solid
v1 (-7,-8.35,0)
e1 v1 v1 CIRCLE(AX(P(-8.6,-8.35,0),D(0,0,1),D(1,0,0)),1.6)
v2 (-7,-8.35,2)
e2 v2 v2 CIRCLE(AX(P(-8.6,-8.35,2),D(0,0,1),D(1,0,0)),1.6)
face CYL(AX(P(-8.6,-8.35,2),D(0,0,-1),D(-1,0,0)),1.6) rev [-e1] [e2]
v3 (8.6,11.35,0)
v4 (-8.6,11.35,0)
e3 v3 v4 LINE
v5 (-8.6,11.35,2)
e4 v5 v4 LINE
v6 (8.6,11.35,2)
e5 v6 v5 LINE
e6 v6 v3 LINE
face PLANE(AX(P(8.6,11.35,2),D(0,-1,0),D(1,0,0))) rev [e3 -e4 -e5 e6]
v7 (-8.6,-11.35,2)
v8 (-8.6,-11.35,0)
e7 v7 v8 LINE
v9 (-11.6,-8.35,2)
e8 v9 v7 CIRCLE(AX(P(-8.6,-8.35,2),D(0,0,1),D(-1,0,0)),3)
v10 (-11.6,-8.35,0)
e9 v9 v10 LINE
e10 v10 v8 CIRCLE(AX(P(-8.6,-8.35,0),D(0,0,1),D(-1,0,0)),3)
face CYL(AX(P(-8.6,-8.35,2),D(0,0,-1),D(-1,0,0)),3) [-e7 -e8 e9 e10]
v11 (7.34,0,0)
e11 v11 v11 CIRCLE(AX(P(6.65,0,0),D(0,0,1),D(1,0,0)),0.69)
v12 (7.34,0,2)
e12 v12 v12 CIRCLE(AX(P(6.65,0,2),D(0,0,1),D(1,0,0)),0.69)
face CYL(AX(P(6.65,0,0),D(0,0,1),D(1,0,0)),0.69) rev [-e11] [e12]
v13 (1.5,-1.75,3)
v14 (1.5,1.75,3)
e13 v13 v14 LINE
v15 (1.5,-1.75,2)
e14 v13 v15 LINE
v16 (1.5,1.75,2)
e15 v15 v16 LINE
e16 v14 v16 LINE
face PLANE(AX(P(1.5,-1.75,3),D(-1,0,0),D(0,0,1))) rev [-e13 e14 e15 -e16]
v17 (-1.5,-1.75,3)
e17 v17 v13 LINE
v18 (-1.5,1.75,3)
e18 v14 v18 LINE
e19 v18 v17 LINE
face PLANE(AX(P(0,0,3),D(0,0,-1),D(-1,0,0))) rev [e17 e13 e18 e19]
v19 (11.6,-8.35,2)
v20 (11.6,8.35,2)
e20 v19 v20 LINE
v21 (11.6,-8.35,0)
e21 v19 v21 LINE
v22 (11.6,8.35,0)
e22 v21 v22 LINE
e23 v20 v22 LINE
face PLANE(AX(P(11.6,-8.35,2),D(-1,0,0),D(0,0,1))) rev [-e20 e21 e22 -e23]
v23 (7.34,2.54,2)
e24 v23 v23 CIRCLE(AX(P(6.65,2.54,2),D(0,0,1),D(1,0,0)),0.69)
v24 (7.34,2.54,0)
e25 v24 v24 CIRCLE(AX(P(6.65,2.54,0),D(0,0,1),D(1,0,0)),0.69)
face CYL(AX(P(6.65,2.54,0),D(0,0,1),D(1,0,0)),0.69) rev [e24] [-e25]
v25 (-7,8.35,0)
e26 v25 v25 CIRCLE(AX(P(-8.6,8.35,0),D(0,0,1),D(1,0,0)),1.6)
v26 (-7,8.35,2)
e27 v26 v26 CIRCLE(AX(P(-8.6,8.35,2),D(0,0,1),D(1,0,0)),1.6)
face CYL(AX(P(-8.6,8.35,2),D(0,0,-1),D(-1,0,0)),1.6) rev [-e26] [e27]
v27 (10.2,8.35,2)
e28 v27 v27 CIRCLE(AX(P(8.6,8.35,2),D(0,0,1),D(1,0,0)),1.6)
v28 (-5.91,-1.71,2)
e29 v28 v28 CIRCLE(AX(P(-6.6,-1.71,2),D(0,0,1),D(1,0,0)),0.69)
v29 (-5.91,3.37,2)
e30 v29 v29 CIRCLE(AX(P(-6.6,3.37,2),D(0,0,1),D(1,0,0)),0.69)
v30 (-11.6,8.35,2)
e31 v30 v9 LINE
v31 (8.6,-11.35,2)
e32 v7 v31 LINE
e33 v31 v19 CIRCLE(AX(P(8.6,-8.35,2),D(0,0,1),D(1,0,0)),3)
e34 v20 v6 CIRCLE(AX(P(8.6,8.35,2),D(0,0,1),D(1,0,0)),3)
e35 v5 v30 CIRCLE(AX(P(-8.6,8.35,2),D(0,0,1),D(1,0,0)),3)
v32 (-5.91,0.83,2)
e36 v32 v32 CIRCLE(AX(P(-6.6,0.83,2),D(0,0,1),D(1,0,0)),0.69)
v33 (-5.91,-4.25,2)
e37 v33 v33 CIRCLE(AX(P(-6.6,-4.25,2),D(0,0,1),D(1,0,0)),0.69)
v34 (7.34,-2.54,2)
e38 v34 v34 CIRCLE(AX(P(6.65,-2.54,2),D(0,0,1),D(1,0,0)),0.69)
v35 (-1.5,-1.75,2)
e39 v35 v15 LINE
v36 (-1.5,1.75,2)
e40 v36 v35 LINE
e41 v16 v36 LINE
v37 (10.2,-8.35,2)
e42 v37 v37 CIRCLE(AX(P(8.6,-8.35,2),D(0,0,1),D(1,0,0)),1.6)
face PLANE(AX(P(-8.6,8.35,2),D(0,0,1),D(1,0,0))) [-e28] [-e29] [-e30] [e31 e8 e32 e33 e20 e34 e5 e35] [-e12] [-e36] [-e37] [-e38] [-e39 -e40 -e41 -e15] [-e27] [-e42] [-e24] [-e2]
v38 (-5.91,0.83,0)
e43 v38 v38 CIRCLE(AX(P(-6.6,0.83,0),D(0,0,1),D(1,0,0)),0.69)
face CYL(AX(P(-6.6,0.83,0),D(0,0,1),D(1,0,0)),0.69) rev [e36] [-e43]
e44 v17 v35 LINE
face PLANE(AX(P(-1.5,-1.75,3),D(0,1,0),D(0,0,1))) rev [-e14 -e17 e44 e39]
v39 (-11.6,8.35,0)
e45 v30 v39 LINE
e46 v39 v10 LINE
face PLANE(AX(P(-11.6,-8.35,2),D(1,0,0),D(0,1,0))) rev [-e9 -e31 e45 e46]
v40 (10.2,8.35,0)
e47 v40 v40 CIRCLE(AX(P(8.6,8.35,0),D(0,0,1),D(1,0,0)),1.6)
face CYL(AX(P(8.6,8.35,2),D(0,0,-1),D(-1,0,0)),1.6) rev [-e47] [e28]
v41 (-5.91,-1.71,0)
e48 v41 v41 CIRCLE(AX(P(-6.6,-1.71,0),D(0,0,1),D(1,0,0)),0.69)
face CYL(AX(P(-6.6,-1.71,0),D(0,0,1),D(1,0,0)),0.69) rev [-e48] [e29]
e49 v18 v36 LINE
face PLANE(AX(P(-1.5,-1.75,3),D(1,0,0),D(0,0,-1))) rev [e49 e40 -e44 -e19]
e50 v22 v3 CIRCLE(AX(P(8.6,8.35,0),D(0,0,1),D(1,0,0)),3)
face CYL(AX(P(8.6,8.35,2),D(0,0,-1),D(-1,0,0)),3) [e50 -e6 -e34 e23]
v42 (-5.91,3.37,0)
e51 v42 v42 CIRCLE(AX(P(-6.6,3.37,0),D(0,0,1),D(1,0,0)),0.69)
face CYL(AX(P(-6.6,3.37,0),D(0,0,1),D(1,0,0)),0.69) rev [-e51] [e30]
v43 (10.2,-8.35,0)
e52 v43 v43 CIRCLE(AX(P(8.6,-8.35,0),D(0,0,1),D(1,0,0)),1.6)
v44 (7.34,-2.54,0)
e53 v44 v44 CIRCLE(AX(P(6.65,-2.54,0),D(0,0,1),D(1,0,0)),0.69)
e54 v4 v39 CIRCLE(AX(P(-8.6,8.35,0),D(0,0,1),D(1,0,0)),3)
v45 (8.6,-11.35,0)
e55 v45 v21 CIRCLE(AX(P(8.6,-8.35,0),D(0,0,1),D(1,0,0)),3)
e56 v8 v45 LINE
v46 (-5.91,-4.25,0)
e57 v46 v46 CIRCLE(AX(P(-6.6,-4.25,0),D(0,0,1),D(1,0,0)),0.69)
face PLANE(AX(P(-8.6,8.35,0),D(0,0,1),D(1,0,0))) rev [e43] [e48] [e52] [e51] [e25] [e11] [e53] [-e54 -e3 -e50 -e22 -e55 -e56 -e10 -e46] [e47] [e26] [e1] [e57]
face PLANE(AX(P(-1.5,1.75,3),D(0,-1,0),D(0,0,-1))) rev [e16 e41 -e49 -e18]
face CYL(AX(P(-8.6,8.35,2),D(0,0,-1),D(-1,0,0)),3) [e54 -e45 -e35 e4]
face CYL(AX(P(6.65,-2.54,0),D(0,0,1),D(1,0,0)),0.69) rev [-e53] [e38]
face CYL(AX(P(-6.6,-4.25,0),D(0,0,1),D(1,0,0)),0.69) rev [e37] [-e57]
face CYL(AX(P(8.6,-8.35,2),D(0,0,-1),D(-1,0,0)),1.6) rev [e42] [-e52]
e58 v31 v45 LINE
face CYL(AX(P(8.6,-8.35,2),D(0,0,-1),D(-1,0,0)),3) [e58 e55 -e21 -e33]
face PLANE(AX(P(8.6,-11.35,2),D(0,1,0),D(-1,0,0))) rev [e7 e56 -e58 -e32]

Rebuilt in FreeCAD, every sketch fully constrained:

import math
import FreeCAD as App
import Part
import Sketcher
from FreeCAD import Vector


def add_polygon(sketch, points):
    """Adds a closed chain of lines whose ends are joined by coincident constraints."""
    first, n = sketch.GeometryCount, len(points)
    for a, b in zip(points, points[1:] + points[:1]):
        sketch.addGeometry(Part.LineSegment(App.Vector(*a, 0), App.Vector(*b, 0)), False)
    for i in range(n):
        sketch.addConstraint(Sketcher.Constraint("Coincident", first + i, 2, first + (i + 1) % n, 1))

doc = App.newDocument("Part")
body = doc.addObject("PartDesign::Body", "Body")

sketch1 = body.newObject("Sketcher::SketchObject", "Sketch")
sketch1.AttachmentSupport = (doc.getObject("XY_Plane"), [""])
sketch1.MapMode = "FlatFace"
sketch1.addGeometry([
    Part.LineSegment(Vector(-8.6, -11.35, 0), Vector(8.6, -11.35, 0)),
    Part.ArcOfCircle(Part.Circle(Vector(8.6, -8.35, 0), Vector(0, 0, 1), 3), math.radians(-90), math.radians(0)),
    Part.LineSegment(Vector(11.6, -8.35, 0), Vector(11.6, 8.35, 0)),
    Part.ArcOfCircle(Part.Circle(Vector(8.6, 8.35, 0), Vector(0, 0, 1), 3), math.radians(0), math.radians(90)),
    Part.LineSegment(Vector(8.6, 11.35, 0), Vector(-8.6, 11.35, 0)),
    Part.ArcOfCircle(Part.Circle(Vector(-8.6, 8.35, 0), Vector(0, 0, 1), 3), math.radians(90), math.radians(180)),
    Part.LineSegment(Vector(-11.6, 8.35, 0), Vector(-11.6, -8.35, 0)),
    Part.ArcOfCircle(Part.Circle(Vector(-8.6, -8.35, 0), Vector(0, 0, 1), 3), math.radians(180), math.radians(270)),
    Part.Circle(Vector(8.6, -8.35, 0), Vector(0, 0, 1), 1.6),
    Part.Circle(Vector(-8.6, -8.35, 0), Vector(0, 0, 1), 1.6),
    Part.Circle(Vector(8.6, 8.35, 0), Vector(0, 0, 1), 1.6),
    Part.Circle(Vector(-8.6, 8.35, 0), Vector(0, 0, 1), 1.6),
], False)
sketch1.addConstraint([
    Sketcher.Constraint("Tangent", 0, 2, 1, 1),
    Sketcher.Constraint("Tangent", 1, 2, 2, 1),
    Sketcher.Constraint("Tangent", 2, 2, 3, 1),
    Sketcher.Constraint("Tangent", 3, 2, 4, 1),
    Sketcher.Constraint("Tangent", 4, 2, 5, 1),
    Sketcher.Constraint("Tangent", 5, 2, 6, 1),
    Sketcher.Constraint("Tangent", 6, 2, 7, 1),
    Sketcher.Constraint("Tangent", 7, 2, 0, 1),
    Sketcher.Constraint("Horizontal", 0),
    Sketcher.Constraint("Vertical", 2),
    Sketcher.Constraint("Horizontal", 4),
    Sketcher.Constraint("Vertical", 6),
    Sketcher.Constraint("Coincident", 8, 3, 1, 3),
    Sketcher.Constraint("Coincident", 9, 3, 7, 3),
    Sketcher.Constraint("Coincident", 10, 3, 3, 3),
    Sketcher.Constraint("Coincident", 11, 3, 5, 3),
    Sketcher.Constraint("Equal", 1, 3),
    Sketcher.Constraint("Equal", 3, 5),
    Sketcher.Constraint("Equal", 5, 7),
    Sketcher.Constraint("Equal", 8, 9),
    Sketcher.Constraint("Equal", 9, 10),
    Sketcher.Constraint("Equal", 10, 11),
    Sketcher.Constraint("Symmetric", 1, 3, 5, 3, -1, 1),
    Sketcher.Constraint("Radius", 1, 3.0),
    Sketcher.Constraint("Diameter", 8, 3.2),
    Sketcher.Constraint("DistanceX", 0, 1, 0, 2, 17.2),
    Sketcher.Constraint("DistanceY", 2, 1, 2, 2, 16.7),
])
pad1 = body.newObject("PartDesign::Pad", "Pad")
pad1.Profile = sketch1
pad1.Length = 2

sketch2 = body.newObject("Sketcher::SketchObject", "Sketch001")
sketch2.AttachmentSupport = (doc.getObject("XY_Plane"), [""])
sketch2.MapMode = "FlatFace"
sketch2.AttachmentOffset = App.Placement(Vector(0, 0, 2), App.Rotation())
sketch2.addGeometry([
    Part.Circle(Vector(-6.6, -4.25, 0), Vector(0, 0, 1), 0.69),
    Part.Circle(Vector(-6.6, -1.71, 0), Vector(0, 0, 1), 0.69),
    Part.Circle(Vector(-6.6, 0.83, 0), Vector(0, 0, 1), 0.69),
    Part.Circle(Vector(-6.6, 3.37, 0), Vector(0, 0, 1), 0.69),
    Part.Circle(Vector(6.65, 0, 0), Vector(0, 0, 1), 0.69),
    Part.Circle(Vector(6.65, 2.54, 0), Vector(0, 0, 1), 0.69),
    Part.Circle(Vector(6.65, -2.54, 0), Vector(0, 0, 1), 0.69),
], False)
sketch2.addConstraint([
    Sketcher.Constraint("Equal", 0, 1),
    Sketcher.Constraint("Equal", 1, 2),
    Sketcher.Constraint("Equal", 2, 3),
    Sketcher.Constraint("Equal", 3, 4),
    Sketcher.Constraint("Equal", 4, 5),
    Sketcher.Constraint("Equal", 5, 6),
    Sketcher.Constraint("Symmetric", 5, 3, 6, 3, -1),
    Sketcher.Constraint("PointOnObject", 4, 3, -1),
    Sketcher.Constraint("Vertical", 0, 3, 1, 3),
    Sketcher.Constraint("Vertical", 1, 3, 2, 3),
    Sketcher.Constraint("Vertical", 2, 3, 3, 3),
    Sketcher.Constraint("Vertical", 4, 3, 5, 3),
    Sketcher.Constraint("Diameter", 0, 1.38),
    Sketcher.Constraint("DistanceX", 0, 3, -1, 1, 6.6),
    Sketcher.Constraint("DistanceY", 0, 3, -1, 1, 4.25),
    Sketcher.Constraint("DistanceY", 1, 3, -1, 1, 1.71),
    Sketcher.Constraint("DistanceY", -1, 1, 2, 3, 0.83),
    Sketcher.Constraint("DistanceY", -1, 1, 3, 3, 3.37),
    Sketcher.Constraint("DistanceX", -1, 1, 4, 3, 6.65),
    Sketcher.Constraint("DistanceY", -1, 1, 5, 3, 2.54),
])
pocket1 = body.newObject("PartDesign::Pocket", "Pocket")
pocket1.Profile = sketch2
pocket1.Length = 2

sketch3 = body.newObject("Sketcher::SketchObject", "Sketch002")
sketch3.AttachmentSupport = (doc.getObject("XY_Plane"), [""])
sketch3.MapMode = "FlatFace"
sketch3.AttachmentOffset = App.Placement(Vector(0, 0, 2), App.Rotation())
add_polygon(sketch3, [(-1.5, 1.75), (-1.5, -1.75), (1.5, -1.75), (1.5, 1.75)])
sketch3.addConstraint([
    Sketcher.Constraint("Vertical", 0),
    Sketcher.Constraint("Horizontal", 1),
    Sketcher.Constraint("Vertical", 2),
    Sketcher.Constraint("Horizontal", 3),
    Sketcher.Constraint("Symmetric", 0, 2, 2, 2, -1, 1),
    Sketcher.Constraint("DistanceX", 1, 1, 1, 2, 3.0),
    Sketcher.Constraint("DistanceY", 0, 2, 0, 1, 3.5),
])
pad2 = body.newObject("PartDesign::Pad", "Pad001")
pad2.Profile = sketch3
pad2.Length = 1

doc.recompute()
